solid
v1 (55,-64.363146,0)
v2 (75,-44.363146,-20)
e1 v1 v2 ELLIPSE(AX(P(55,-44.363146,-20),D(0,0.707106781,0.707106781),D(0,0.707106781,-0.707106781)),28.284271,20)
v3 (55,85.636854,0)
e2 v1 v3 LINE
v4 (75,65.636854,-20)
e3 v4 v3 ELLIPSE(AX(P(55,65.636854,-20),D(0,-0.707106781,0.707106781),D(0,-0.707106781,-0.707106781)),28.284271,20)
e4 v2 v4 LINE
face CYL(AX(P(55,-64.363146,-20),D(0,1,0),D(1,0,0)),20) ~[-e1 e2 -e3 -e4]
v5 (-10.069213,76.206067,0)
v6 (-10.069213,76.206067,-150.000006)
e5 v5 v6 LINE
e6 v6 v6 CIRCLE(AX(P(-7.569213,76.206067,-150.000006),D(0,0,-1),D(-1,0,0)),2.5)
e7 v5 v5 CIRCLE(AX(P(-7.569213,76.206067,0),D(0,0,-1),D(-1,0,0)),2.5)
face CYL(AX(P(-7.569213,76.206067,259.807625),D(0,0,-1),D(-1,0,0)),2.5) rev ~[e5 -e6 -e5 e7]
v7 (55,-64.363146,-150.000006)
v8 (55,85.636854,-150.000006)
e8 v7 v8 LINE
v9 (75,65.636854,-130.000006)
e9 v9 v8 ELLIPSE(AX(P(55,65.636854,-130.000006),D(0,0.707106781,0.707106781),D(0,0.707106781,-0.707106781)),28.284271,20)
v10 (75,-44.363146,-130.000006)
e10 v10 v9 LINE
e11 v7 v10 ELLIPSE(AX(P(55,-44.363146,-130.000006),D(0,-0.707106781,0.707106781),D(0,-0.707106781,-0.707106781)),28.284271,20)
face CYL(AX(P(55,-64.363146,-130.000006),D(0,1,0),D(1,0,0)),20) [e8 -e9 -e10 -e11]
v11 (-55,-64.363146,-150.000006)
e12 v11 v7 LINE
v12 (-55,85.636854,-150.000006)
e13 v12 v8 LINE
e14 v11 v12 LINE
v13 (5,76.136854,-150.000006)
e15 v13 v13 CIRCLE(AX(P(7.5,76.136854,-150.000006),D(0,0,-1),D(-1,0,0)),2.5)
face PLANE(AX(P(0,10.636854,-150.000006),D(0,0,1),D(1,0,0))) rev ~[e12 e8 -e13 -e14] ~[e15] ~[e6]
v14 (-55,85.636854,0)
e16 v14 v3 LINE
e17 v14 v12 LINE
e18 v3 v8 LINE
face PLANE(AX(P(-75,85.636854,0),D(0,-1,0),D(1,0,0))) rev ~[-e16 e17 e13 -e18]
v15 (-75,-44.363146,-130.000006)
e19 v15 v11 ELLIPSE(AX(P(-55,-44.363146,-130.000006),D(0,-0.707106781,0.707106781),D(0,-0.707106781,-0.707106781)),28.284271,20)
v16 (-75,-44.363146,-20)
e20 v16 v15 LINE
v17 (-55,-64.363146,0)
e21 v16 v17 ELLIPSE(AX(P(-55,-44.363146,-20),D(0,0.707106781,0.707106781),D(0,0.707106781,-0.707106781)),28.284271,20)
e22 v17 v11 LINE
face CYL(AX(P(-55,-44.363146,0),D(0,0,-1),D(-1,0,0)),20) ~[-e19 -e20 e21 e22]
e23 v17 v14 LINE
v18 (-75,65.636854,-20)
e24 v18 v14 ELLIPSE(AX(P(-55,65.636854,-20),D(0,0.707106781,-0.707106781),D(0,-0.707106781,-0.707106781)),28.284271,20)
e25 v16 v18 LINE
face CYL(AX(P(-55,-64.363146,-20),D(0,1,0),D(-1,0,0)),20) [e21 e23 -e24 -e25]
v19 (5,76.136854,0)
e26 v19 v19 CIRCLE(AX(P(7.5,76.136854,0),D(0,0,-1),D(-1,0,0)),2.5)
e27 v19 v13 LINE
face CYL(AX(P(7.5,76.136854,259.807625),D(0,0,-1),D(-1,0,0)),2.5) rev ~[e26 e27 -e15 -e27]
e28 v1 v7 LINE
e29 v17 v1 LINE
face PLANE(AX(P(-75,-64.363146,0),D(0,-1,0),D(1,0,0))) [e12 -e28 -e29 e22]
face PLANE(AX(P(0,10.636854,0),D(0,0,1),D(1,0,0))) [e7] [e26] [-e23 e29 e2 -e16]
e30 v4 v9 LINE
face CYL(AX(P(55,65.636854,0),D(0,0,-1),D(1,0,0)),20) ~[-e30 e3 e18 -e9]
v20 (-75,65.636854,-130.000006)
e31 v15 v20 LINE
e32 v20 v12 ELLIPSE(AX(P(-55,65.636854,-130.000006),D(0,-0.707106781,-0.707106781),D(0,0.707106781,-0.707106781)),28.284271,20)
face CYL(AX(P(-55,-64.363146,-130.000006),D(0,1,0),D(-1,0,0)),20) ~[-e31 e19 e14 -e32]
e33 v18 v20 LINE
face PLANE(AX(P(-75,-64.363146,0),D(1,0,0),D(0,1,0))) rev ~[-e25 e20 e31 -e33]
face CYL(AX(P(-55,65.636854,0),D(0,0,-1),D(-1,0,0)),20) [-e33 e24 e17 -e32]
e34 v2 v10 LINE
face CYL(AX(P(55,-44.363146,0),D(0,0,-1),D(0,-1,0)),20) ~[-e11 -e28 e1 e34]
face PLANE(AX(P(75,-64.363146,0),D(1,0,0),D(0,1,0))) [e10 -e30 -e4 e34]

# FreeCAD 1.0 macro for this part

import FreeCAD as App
import Part
import Sketcher

V = App.Vector
Q = App.Units.Quantity


def edges_at(feature, points):
    """Names of the edges that pass closest to the given points."""
    edges = feature.Shape.Edges
    near = lambda p: min(range(len(edges)), key=lambda i: edges[i].distToShape(Part.Vertex(*p))[0])
    return sorted({f"Edge{near(p) + 1}" for p in points})

doc = App.newDocument("Part")
body = doc.addObject("PartDesign::Body", "Body")

sketch1 = doc.addObject("Sketcher::SketchObject", "Sketch")
body.addObject(sketch1)
sketch1.AttachmentSupport = (doc.XY_Plane, [""])
sketch1.MapMode = "FlatFace"
sketch1.addGeometry([
    Part.LineSegment(V(-75, 85.636854, 0), V(-75, -64.363146, 0)),
    Part.LineSegment(V(-75, -64.363146, 0), V(75, -64.363146, 0)),
    Part.LineSegment(V(75, -64.363146, 0), V(75, 85.636854, 0)),
    Part.LineSegment(V(75, 85.636854, 0), V(-75, 85.636854, 0)),
], False)
sketch1.addConstraint([
    Sketcher.Constraint("Coincident", 0, 2, 1, 1),
    Sketcher.Constraint("Coincident", 1, 2, 2, 1),
    Sketcher.Constraint("Coincident", 2, 2, 3, 1),
    Sketcher.Constraint("Coincident", 3, 2, 0, 1),
    Sketcher.Constraint("Vertical", 0),
    Sketcher.Constraint("Horizontal", 1),
    Sketcher.Constraint("Vertical", 2),
    Sketcher.Constraint("Horizontal", 3),
    Sketcher.Constraint("Equal", 3, 0),
    Sketcher.Constraint("DistanceX", 1, 1, 1, 2, Q("150 mm")),
    Sketcher.Constraint("DistanceX", 0, 2, -1, 1, Q("75 mm")),
    Sketcher.Constraint("DistanceY", 0, 2, -1, 1, Q("64.363146 mm")),
])
pad1 = doc.addObject("PartDesign::Pad", "Pad")
body.addObject(pad1)
pad1.Profile = sketch1
pad1.Length = 150.000006
pad1.Reversed = True
doc.recompute()

fillet = doc.addObject("PartDesign::Fillet", "Fillet")
body.addObject(fillet)
fillet.Base = (pad1, edges_at(pad1, [
    (-75, 85.637, -75),
    (-75, -64.363, -75),
    (-75, 10.637, 0),
    (-75, 10.637, -150),
    (75, -64.363, -75),
    (75, 85.637, -75),
    (75, 10.637, 0),
    (75, 10.637, -150),
]))
fillet.Radius = 20

sketch2 = doc.addObject("Sketcher::SketchObject", "Sketch001")
body.addObject(sketch2)
sketch2.AttachmentSupport = (doc.XY_Plane, [""])
sketch2.MapMode = "FlatFace"
sketch2.addGeometry([
    Part.Circle(V(7.5, 76.136854, 0), V(0, 0, 1), 2.5),
    Part.Circle(V(-7.569213, 76.206067, 0), V(0, 0, 1), 2.5),
], False)
sketch2.addConstraint([
    Sketcher.Constraint("Equal", 0, 1),
    Sketcher.Constraint("Diameter", 0, Q("5 mm")),
    Sketcher.Constraint("DistanceX", -1, 1, 0, 3, Q("7.5 mm")),
    Sketcher.Constraint("DistanceY", -1, 1, 0, 3, Q("76.136854 mm")),
    Sketcher.Constraint("DistanceX", 1, 3, -1, 1, Q("7.569213 mm")),
    Sketcher.Constraint("DistanceY", -1, 1, 1, 3, Q("76.206067 mm")),
])
doc.recompute()
hole = doc.addObject("PartDesign::Hole", "Hole")
body.addObject(hole)
hole.Profile = sketch2
hole.ThreadType = "None"
hole.Diameter = 5
hole.DepthType = "ThroughAll"

doc.recompute()
